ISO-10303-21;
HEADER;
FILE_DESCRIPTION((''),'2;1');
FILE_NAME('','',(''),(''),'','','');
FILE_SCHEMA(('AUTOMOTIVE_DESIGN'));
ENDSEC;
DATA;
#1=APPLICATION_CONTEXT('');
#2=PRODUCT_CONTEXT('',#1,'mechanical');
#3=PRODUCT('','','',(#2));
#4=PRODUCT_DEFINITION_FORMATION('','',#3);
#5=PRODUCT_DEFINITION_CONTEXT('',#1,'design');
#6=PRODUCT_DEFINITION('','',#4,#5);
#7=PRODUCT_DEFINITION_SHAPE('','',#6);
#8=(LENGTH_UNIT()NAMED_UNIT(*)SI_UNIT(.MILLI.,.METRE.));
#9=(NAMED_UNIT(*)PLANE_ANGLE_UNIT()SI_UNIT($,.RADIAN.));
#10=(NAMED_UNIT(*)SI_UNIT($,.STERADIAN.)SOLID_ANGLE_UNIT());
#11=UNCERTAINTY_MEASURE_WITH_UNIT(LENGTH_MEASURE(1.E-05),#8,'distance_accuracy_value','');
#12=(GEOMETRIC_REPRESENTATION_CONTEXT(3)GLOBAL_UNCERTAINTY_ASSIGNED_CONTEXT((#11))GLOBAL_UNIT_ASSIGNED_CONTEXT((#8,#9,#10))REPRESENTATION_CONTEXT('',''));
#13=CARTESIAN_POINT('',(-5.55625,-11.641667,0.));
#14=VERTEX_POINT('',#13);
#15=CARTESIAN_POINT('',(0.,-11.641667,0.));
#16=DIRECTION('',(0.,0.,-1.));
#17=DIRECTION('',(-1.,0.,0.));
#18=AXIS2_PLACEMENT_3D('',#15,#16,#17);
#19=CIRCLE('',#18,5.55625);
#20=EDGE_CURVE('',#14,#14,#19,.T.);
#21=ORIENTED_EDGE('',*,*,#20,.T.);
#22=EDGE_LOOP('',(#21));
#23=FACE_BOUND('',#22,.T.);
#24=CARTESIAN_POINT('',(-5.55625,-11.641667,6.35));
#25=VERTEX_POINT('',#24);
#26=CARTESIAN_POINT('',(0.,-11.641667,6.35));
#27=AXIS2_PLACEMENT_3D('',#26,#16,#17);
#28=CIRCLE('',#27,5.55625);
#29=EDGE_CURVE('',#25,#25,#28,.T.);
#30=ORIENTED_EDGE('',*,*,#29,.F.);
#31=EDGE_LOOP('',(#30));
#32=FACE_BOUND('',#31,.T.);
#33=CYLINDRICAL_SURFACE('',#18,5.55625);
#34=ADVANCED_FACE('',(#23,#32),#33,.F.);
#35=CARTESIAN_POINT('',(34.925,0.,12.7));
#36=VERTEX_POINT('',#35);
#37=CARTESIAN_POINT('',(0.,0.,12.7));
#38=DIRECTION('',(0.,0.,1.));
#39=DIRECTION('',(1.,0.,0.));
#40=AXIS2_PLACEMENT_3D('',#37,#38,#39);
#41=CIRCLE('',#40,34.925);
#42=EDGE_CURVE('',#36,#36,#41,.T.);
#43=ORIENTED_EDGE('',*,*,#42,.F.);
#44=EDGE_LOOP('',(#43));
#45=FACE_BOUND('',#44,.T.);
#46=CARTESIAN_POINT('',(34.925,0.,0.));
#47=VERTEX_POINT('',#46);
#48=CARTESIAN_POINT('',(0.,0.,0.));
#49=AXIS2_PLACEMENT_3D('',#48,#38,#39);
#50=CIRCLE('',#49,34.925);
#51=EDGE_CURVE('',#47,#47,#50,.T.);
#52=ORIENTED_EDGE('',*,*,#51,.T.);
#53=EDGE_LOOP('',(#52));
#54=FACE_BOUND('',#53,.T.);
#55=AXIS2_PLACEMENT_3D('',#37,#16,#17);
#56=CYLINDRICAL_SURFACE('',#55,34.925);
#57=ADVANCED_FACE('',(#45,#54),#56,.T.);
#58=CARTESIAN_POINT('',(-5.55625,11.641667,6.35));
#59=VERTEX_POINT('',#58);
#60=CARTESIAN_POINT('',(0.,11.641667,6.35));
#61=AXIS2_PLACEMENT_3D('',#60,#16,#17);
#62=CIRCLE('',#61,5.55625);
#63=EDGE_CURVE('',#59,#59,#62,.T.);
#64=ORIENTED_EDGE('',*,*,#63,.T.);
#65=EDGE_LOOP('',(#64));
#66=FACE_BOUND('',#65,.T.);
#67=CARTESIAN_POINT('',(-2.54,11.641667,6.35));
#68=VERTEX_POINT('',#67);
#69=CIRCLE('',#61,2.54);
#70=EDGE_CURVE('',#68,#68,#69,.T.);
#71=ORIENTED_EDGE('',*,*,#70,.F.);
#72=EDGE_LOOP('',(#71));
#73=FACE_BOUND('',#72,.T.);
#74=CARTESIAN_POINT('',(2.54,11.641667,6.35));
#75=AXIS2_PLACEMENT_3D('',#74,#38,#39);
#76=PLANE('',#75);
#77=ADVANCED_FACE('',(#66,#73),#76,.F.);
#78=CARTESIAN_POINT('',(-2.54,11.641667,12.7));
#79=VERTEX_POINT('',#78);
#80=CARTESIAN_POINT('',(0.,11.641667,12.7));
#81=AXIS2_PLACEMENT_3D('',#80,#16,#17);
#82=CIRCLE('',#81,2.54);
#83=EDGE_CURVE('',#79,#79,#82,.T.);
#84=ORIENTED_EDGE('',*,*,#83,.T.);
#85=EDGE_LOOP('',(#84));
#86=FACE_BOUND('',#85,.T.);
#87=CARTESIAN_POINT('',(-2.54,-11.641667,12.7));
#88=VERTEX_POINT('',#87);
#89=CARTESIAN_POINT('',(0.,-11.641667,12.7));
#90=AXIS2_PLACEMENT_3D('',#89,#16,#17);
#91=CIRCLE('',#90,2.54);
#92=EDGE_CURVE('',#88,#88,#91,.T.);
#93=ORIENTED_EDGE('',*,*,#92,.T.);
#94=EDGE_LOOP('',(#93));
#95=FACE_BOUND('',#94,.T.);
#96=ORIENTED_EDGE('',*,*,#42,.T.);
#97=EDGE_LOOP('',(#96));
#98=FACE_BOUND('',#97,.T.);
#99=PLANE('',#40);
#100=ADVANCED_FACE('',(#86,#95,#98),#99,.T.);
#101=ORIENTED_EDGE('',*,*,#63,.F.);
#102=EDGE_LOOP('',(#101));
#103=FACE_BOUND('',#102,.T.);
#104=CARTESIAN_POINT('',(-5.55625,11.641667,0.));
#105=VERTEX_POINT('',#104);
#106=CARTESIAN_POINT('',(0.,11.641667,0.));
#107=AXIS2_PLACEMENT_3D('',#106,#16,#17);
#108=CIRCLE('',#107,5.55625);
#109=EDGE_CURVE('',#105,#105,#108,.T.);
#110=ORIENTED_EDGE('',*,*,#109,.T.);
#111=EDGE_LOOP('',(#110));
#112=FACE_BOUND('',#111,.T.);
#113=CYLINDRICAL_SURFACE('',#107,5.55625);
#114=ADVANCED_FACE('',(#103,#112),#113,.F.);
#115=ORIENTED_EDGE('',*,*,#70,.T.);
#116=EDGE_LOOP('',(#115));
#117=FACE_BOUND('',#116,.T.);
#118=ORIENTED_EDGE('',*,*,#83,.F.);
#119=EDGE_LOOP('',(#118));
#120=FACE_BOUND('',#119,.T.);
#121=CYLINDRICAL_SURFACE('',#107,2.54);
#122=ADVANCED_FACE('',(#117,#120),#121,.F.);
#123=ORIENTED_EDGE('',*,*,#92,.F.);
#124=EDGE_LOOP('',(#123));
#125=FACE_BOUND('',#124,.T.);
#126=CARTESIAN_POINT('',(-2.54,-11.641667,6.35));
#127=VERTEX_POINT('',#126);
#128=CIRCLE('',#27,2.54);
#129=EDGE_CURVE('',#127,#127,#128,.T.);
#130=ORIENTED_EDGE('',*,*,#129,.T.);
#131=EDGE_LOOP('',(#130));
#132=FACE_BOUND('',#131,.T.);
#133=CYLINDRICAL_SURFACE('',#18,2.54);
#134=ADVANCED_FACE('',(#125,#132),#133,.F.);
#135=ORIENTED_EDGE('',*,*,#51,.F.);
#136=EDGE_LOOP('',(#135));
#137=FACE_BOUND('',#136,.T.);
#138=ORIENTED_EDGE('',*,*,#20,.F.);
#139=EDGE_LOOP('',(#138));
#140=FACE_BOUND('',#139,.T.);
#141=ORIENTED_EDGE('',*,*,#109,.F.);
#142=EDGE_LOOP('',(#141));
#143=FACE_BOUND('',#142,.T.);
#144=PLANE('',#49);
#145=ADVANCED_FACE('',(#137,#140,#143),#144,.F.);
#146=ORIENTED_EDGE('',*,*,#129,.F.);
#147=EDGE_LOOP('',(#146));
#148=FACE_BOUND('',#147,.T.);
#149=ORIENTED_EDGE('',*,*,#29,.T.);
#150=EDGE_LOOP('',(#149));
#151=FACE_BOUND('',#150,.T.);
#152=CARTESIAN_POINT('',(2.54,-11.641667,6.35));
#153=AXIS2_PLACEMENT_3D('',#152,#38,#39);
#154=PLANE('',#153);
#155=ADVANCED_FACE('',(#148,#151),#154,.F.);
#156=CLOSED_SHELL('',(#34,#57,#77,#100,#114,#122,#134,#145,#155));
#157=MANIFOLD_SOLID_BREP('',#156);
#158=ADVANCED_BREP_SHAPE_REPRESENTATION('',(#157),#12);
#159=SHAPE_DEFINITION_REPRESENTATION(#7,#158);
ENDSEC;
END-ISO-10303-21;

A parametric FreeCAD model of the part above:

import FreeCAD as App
import Part
import Sketcher
from FreeCAD import Vector
Q = App.Units.Quantity

doc = App.newDocument("Part")
params = doc.addObject("Spreadsheet::Sheet", "Params")
for row, (alias, value) in enumerate([
    ("sketch1_diameter", "2.75 in"),
    ("pad1_length", "0.5 in"),
    ("sketch2_diameter", "0.2 in"),
    ("hole_diameter", "0.2 in"),
    ("hole_cbore_diameter", "0.4375 in"),
    ("hole_cbore_depth", "0.25 in"),
], start=1):
    params.set(f"A{row}", alias)
    params.set(f"B{row}", "=" + value)
    params.setAlias(f"B{row}", alias)

body = doc.addObject("PartDesign::Body", "Body")

sketch1 = body.newObject("Sketcher::SketchObject", "Sketch")
sketch1.AttachmentSupport = (doc.getObject("XY_Plane"), [""])
sketch1.MapMode = "FlatFace"
sketch1.addGeometry(Part.Circle(Vector(0, 0, 0), Vector(0, 0, 1), 35), False)
sketch1.addConstraint([
    Sketcher.Constraint("Coincident", 0, 3, -1, 1),
    Sketcher.Constraint("Diameter", 0, Q("2.75 in")),
])
sketch1.setExpression("Constraints[1]", "Params.sketch1_diameter")
pad1 = body.newObject("PartDesign::Pad", "Pad")
pad1.Profile = sketch1
pad1.setExpression("Length", "Params.pad1_length")

sketch2 = body.newObject("Sketcher::SketchObject", "Sketch001")
sketch2.AttachmentSupport = (doc.getObject("XY_Plane"), [""])
sketch2.MapMode = "FlatFace"
sketch2.addGeometry([
    Part.Circle(Vector(0, 11.6, 0), Vector(0, 0, 1), 2.5),
    Part.Circle(Vector(0, -11.6, 0), Vector(0, 0, 1), 2.5),
], False)
sketch2.addConstraint([
    Sketcher.Constraint("Equal", 0, 1),
    Sketcher.Constraint("Symmetric", 0, 3, 1, 3, -1, 1),
    Sketcher.Constraint("PointOnObject", 0, 3, -2),
    Sketcher.Constraint("Diameter", 0, Q("0.2 in")),
    Sketcher.Constraint("DistanceY", -1, 1, 0, 3, Q("11.641667 mm")),
])
sketch2.setExpression("Constraints[3]", "Params.sketch2_diameter")
doc.recompute()
hole = body.newObject("PartDesign::Hole", "Hole")
hole.Profile = sketch2
hole.ThreadType = "None"
hole.setExpression("Diameter", "Params.hole_diameter")
hole.DepthType = "ThroughAll"
hole.HoleCutType = "Counterbore"
hole.setExpression("HoleCutDiameter", "Params.hole_cbore_diameter")
hole.setExpression("HoleCutDepth", "Params.hole_cbore_depth")
hole.Reversed = True

doc.recompute()
